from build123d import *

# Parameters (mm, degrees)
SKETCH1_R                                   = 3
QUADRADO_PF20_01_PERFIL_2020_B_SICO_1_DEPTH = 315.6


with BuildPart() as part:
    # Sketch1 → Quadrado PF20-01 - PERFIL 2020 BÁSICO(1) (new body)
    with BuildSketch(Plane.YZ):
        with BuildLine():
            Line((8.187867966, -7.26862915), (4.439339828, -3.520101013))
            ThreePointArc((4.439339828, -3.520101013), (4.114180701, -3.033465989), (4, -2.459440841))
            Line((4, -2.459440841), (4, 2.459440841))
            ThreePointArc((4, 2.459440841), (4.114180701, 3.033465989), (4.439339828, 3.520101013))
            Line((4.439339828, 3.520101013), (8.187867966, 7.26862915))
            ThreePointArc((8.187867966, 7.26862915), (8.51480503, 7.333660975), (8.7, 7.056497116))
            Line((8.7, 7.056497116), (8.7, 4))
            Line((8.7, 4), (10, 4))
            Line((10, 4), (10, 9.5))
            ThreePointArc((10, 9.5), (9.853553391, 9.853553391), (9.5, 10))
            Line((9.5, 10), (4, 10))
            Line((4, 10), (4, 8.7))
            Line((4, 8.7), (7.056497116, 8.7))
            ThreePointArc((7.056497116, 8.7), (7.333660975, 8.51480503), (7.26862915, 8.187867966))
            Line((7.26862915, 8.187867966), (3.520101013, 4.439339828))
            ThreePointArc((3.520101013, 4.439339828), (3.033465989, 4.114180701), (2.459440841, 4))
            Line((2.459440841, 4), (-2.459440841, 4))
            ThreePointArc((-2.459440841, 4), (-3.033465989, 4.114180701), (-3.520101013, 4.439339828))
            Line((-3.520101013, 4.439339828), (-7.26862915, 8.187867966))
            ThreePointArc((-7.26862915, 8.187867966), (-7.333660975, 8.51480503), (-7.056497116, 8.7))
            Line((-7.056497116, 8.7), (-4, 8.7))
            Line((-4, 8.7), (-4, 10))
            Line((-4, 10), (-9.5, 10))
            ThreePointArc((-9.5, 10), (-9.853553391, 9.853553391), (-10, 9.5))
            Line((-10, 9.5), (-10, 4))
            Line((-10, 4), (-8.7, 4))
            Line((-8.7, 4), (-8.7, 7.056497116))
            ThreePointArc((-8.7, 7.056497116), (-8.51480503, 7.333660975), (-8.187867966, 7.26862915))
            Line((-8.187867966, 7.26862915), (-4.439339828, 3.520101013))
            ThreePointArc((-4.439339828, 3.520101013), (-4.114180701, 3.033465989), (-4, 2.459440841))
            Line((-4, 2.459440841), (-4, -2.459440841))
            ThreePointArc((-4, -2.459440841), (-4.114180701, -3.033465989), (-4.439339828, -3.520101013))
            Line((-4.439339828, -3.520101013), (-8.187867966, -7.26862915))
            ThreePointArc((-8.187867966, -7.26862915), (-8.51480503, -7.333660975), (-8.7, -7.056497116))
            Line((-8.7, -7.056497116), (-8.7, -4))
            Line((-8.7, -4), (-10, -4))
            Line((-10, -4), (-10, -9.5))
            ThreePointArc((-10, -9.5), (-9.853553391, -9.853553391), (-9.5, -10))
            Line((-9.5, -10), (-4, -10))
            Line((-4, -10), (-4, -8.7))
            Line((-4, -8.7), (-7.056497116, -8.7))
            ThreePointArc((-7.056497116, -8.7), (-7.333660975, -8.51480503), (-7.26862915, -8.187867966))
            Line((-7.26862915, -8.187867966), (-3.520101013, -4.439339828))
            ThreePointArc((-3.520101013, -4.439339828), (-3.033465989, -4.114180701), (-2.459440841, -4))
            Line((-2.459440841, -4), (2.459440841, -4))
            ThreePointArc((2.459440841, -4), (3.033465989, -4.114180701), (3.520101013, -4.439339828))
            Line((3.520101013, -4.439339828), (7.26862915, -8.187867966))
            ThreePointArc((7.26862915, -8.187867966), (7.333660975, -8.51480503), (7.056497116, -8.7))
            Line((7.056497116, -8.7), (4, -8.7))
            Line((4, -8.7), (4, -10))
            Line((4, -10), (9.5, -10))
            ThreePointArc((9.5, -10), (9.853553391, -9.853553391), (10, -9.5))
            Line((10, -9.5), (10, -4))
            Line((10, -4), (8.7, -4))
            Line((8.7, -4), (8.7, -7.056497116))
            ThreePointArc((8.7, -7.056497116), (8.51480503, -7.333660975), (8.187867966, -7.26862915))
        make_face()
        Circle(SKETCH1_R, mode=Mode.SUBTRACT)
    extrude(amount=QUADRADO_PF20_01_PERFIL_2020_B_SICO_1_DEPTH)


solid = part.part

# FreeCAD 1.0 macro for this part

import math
import FreeCAD as App
import Part
import Sketcher
from FreeCAD import Vector

doc = App.newDocument("Part")
params = doc.addObject("Spreadsheet::Sheet", "Params")
for row, (alias, value) in enumerate([
    ("sketch1_diameter", "6 mm"),
    ("sketch1_radius", "1.5 mm"),
    ("sketch1_radius2", "0.3 mm"),
    ("sketch1_radius3", "0.5 mm"),
    ("sketch1_width", "1.3 mm"),
    ("pad1_length", "315.6 mm"),
], start=1):
    params.set(f"A{row}", alias)
    params.set(f"B{row}", "=" + value)
    params.setAlias(f"B{row}", alias)

body = doc.addObject("PartDesign::Body", "Body")

sketch1 = body.newObject("Sketcher::SketchObject", "Sketch")
sketch1.AttachmentSupport = (doc.getObject("YZ_Plane"), [""])
sketch1.MapMode = "FlatFace"
sketch1.addGeometry(Part.LineSegment(Vector(8.187868, -7.268629, 0), Vector(4.43934, -3.520101, 0)), False)
sketch1.addGeometry(Part.ArcOfCircle(Part.Circle(Vector(5.5, -2.459441, 0), Vector(0, 0, 1), 1.5), math.radians(180), math.radians(225)), False)
sketch1.addGeometry(Part.LineSegment(Vector(4, -2.459441, 0), Vector(4, 2.459441, 0)), False)
sketch1.addGeometry(Part.ArcOfCircle(Part.Circle(Vector(5.5, 2.459441, 0), Vector(0, 0, 1), 1.5), math.radians(135), math.radians(180)), False)
sketch1.addGeometry(Part.LineSegment(Vector(4.43934, 3.520101, 0), Vector(8.187868, 7.268629, 0)), False)
sketch1.addGeometry(Part.ArcOfCircle(Part.Circle(Vector(8.4, 7.056497, 0), Vector(0, 0, 1), 0.3), math.radians(0), math.radians(135)), False)
sketch1.addGeometry(Part.LineSegment(Vector(8.7, 7.056497, 0), Vector(8.7, 4, 0)), False)
sketch1.addGeometry(Part.LineSegment(Vector(8.7, 4, 0), Vector(10, 4, 0)), False)
sketch1.addGeometry(Part.LineSegment(Vector(10, 4, 0), Vector(10, 9.5, 0)), False)
sketch1.addGeometry(Part.ArcOfCircle(Part.Circle(Vector(9.5, 9.5, 0), Vector(0, 0, 1), 0.5), math.radians(0), math.radians(90)), False)
sketch1.addGeometry(Part.LineSegment(Vector(9.5, 10, 0), Vector(4, 10, 0)), False)
sketch1.addGeometry(Part.LineSegment(Vector(4, 10, 0), Vector(4, 8.7, 0)), False)
sketch1.addGeometry(Part.LineSegment(Vector(4, 8.7, 0), Vector(7.056497, 8.7, 0)), False)
sketch1.addGeometry(Part.ArcOfCircle(Part.Circle(Vector(7.056497, 8.4, 0), Vector(0, 0, 1), 0.3), math.radians(-45), math.radians(90)), False)
sketch1.addGeometry(Part.LineSegment(Vector(7.268629, 8.187868, 0), Vector(3.520101, 4.43934, 0)), False)
sketch1.addGeometry(Part.ArcOfCircle(Part.Circle(Vector(2.459441, 5.5, 0), Vector(0, 0, 1), 1.5), math.radians(-90), math.radians(-45)), False)
sketch1.addGeometry(Part.LineSegment(Vector(2.459441, 4, 0), Vector(-2.459441, 4, 0)), False)
sketch1.addGeometry(Part.ArcOfCircle(Part.Circle(Vector(-2.459441, 5.5, 0), Vector(0, 0, 1), 1.5), math.radians(-135), math.radians(-90)), False)
sketch1.addGeometry(Part.LineSegment(Vector(-3.520101, 4.43934, 0), Vector(-7.268629, 8.187868, 0)), False)
sketch1.addGeometry(Part.ArcOfCircle(Part.Circle(Vector(-7.056497, 8.4, 0), Vector(0, 0, 1), 0.3), math.radians(90), math.radians(225)), False)
sketch1.addGeometry(Part.LineSegment(Vector(-7.056497, 8.7, 0), Vector(-4, 8.7, 0)), False)
sketch1.addGeometry(Part.LineSegment(Vector(-4, 8.7, 0), Vector(-4, 10, 0)), False)
sketch1.addGeometry(Part.LineSegment(Vector(-4, 10, 0), Vector(-9.5, 10, 0)), False)
sketch1.addGeometry(Part.ArcOfCircle(Part.Circle(Vector(-9.5, 9.5, 0), Vector(0, 0, 1), 0.5), math.radians(90), math.radians(180)), False)
sketch1.addGeometry(Part.LineSegment(Vector(-10, 9.5, 0), Vector(-10, 4, 0)), False)
sketch1.addGeometry(Part.LineSegment(Vector(-10, 4, 0), Vector(-8.7, 4, 0)), False)
sketch1.addGeometry(Part.LineSegment(Vector(-8.7, 4, 0), Vector(-8.7, 7.056497, 0)), False)
sketch1.addGeometry(Part.ArcOfCircle(Part.Circle(Vector(-8.4, 7.056497, 0), Vector(0, 0, 1), 0.3), math.radians(45), math.radians(180)), False)
sketch1.addGeometry(Part.LineSegment(Vector(-8.187868, 7.268629, 0), Vector(-4.43934, 3.520101, 0)), False)
sketch1.addGeometry(Part.ArcOfCircle(Part.Circle(Vector(-5.5, 2.459441, 0), Vector(0, 0, 1), 1.5), math.radians(0), math.radians(45)), False)
sketch1.addGeometry(Part.LineSegment(Vector(-4, 2.459441, 0), Vector(-4, -2.459441, 0)), False)
sketch1.addGeometry(Part.ArcOfCircle(Part.Circle(Vector(-5.5, -2.459441, 0), Vector(0, 0, 1), 1.5), math.radians(-45), math.radians(0)), False)
sketch1.addGeometry(Part.LineSegment(Vector(-4.43934, -3.520101, 0), Vector(-8.187868, -7.268629, 0)), False)
sketch1.addGeometry(Part.ArcOfCircle(Part.Circle(Vector(-8.4, -7.056497, 0), Vector(0, 0, 1), 0.3), math.radians(-180), math.radians(-45)), False)
sketch1.addGeometry(Part.LineSegment(Vector(-8.7, -7.056497, 0), Vector(-8.7, -4, 0)), False)
sketch1.addGeometry(Part.LineSegment(Vector(-8.7, -4, 0), Vector(-10, -4, 0)), False)
sketch1.addGeometry(Part.LineSegment(Vector(-10, -4, 0), Vector(-10, -9.5, 0)), False)
sketch1.addGeometry(Part.ArcOfCircle(Part.Circle(Vector(-9.5, -9.5, 0), Vector(0, 0, 1), 0.5), math.radians(180), math.radians(270)), False)
sketch1.addGeometry(Part.LineSegment(Vector(-9.5, -10, 0), Vector(-4, -10, 0)), False)
sketch1.addGeometry(Part.LineSegment(Vector(-4, -10, 0), Vector(-4, -8.7, 0)), False)
sketch1.addGeometry(Part.LineSegment(Vector(-4, -8.7, 0), Vector(-7.056497, -8.7, 0)), False)
sketch1.addGeometry(Part.ArcOfCircle(Part.Circle(Vector(-7.056497, -8.4, 0), Vector(0, 0, 1), 0.3), math.radians(135), math.radians(270)), False)
sketch1.addGeometry(Part.LineSegment(Vector(-7.268629, -8.187868, 0), Vector(-3.520101, -4.43934, 0)), False)
sketch1.addGeometry(Part.ArcOfCircle(Part.Circle(Vector(-2.459441, -5.5, 0), Vector(0, 0, 1), 1.5), math.radians(90), math.radians(135)), False)
sketch1.addGeometry(Part.LineSegment(Vector(-2.459441, -4, 0), Vector(2.459441, -4, 0)), False)
sketch1.addGeometry(Part.ArcOfCircle(Part.Circle(Vector(2.459441, -5.5, 0), Vector(0, 0, 1), 1.5), math.radians(45), math.radians(90)), False)
sketch1.addGeometry(Part.LineSegment(Vector(3.520101, -4.43934, 0), Vector(7.268629, -8.187868, 0)), False)
sketch1.addGeometry(Part.ArcOfCircle(Part.Circle(Vector(7.056497, -8.4, 0), Vector(0, 0, 1), 0.3), math.radians(-90), math.radians(45)), False)
sketch1.addGeometry(Part.LineSegment(Vector(7.056497, -8.7, 0), Vector(4, -8.7, 0)), False)
sketch1.addGeometry(Part.LineSegment(Vector(4, -8.7, 0), Vector(4, -10, 0)), False)
sketch1.addGeometry(Part.LineSegment(Vector(4, -10, 0), Vector(9.5, -10, 0)), False)
sketch1.addGeometry(Part.ArcOfCircle(Part.Circle(Vector(9.5, -9.5, 0), Vector(0, 0, 1), 0.5), math.radians(-90), math.radians(0)), False)
sketch1.addGeometry(Part.LineSegment(Vector(10, -9.5, 0), Vector(10, -4, 0)), False)
sketch1.addGeometry(Part.LineSegment(Vector(10, -4, 0), Vector(8.7, -4, 0)), False)
sketch1.addGeometry(Part.LineSegment(Vector(8.7, -4, 0), Vector(8.7, -7.056497, 0)), False)
sketch1.addGeometry(Part.ArcOfCircle(Part.Circle(Vector(8.4, -7.056497, 0), Vector(0, 0, 1), 0.3), math.radians(-135), math.radians(0)), False)
sketch1.addGeometry(Part.Circle(Vector(0, 0, 0), Vector(0, 0, 1), 3), False)
sketch1.addConstraint(Sketcher.Constraint("Tangent", 0, 2, 1, 2))
sketch1.addConstraint(Sketcher.Constraint("Tangent", 1, 1, 2, 1))
sketch1.addConstraint(Sketcher.Constraint("Tangent", 2, 2, 3, 2))
sketch1.addConstraint(Sketcher.Constraint("Tangent", 3, 1, 4, 1))
sketch1.addConstraint(Sketcher.Constraint("Tangent", 4, 2, 5, 2))
sketch1.addConstraint(Sketcher.Constraint("Tangent", 5, 1, 6, 1))
sketch1.addConstraint(Sketcher.Constraint("Coincident", 6, 2, 7, 1))
sketch1.addConstraint(Sketcher.Constraint("Coincident", 7, 2, 8, 1))
sketch1.addConstraint(Sketcher.Constraint("Tangent", 8, 2, 9, 1))
sketch1.addConstraint(Sketcher.Constraint("Tangent", 9, 2, 10, 1))
sketch1.addConstraint(Sketcher.Constraint("Coincident", 10, 2, 11, 1))
sketch1.addConstraint(Sketcher.Constraint("Coincident", 11, 2, 12, 1))
sketch1.addConstraint(Sketcher.Constraint("Tangent", 12, 2, 13, 2))
sketch1.addConstraint(Sketcher.Constraint("Tangent", 13, 1, 14, 1))
sketch1.addConstraint(Sketcher.Constraint("Tangent", 14, 2, 15, 2))
sketch1.addConstraint(Sketcher.Constraint("Tangent", 15, 1, 16, 1))
sketch1.addConstraint(Sketcher.Constraint("Tangent", 16, 2, 17, 2))
sketch1.addConstraint(Sketcher.Constraint("Tangent", 17, 1, 18, 1))
sketch1.addConstraint(Sketcher.Constraint("Tangent", 18, 2, 19, 2))
sketch1.addConstraint(Sketcher.Constraint("Tangent", 19, 1, 20, 1))
sketch1.addConstraint(Sketcher.Constraint("Coincident", 20, 2, 21, 1))
sketch1.addConstraint(Sketcher.Constraint("Coincident", 21, 2, 22, 1))
sketch1.addConstraint(Sketcher.Constraint("Tangent", 22, 2, 23, 1))
sketch1.addConstraint(Sketcher.Constraint("Tangent", 23, 2, 24, 1))
sketch1.addConstraint(Sketcher.Constraint("Coincident", 24, 2, 25, 1))
sketch1.addConstraint(Sketcher.Constraint("Coincident", 25, 2, 26, 1))
sketch1.addConstraint(Sketcher.Constraint("Tangent", 26, 2, 27, 2))
sketch1.addConstraint(Sketcher.Constraint("Tangent", 27, 1, 28, 1))
sketch1.addConstraint(Sketcher.Constraint("Tangent", 28, 2, 29, 2))
sketch1.addConstraint(Sketcher.Constraint("Tangent", 29, 1, 30, 1))
sketch1.addConstraint(Sketcher.Constraint("Tangent", 30, 2, 31, 2))
sketch1.addConstraint(Sketcher.Constraint("Tangent", 31, 1, 32, 1))
sketch1.addConstraint(Sketcher.Constraint("Tangent", 32, 2, 33, 2))
sketch1.addConstraint(Sketcher.Constraint("Tangent", 33, 1, 34, 1))
sketch1.addConstraint(Sketcher.Constraint("Coincident", 34, 2, 35, 1))
sketch1.addConstraint(Sketcher.Constraint("Coincident", 35, 2, 36, 1))
sketch1.addConstraint(Sketcher.Constraint("Tangent", 36, 2, 37, 1))
sketch1.addConstraint(Sketcher.Constraint("Tangent", 37, 2, 38, 1))
sketch1.addConstraint(Sketcher.Constraint("Coincident", 38, 2, 39, 1))
sketch1.addConstraint(Sketcher.Constraint("Coincident", 39, 2, 40, 1))
sketch1.addConstraint(Sketcher.Constraint("Tangent", 40, 2, 41, 2))
sketch1.addConstraint(Sketcher.Constraint("Tangent", 41, 1, 42, 1))
sketch1.addConstraint(Sketcher.Constraint("Tangent", 42, 2, 43, 2))
sketch1.addConstraint(Sketcher.Constraint("Tangent", 43, 1, 44, 1))
sketch1.addConstraint(Sketcher.Constraint("Tangent", 44, 2, 45, 2))
sketch1.addConstraint(Sketcher.Constraint("Tangent", 45, 1, 46, 1))
sketch1.addConstraint(Sketcher.Constraint("Tangent", 46, 2, 47, 2))
sketch1.addConstraint(Sketcher.Constraint("Tangent", 47, 1, 48, 1))
sketch1.addConstraint(Sketcher.Constraint("Coincident", 48, 2, 49, 1))
sketch1.addConstraint(Sketcher.Constraint("Coincident", 49, 2, 50, 1))
sketch1.addConstraint(Sketcher.Constraint("Tangent", 50, 2, 51, 1))
sketch1.addConstraint(Sketcher.Constraint("Tangent", 51, 2, 52, 1))
sketch1.addConstraint(Sketcher.Constraint("Coincident", 52, 2, 53, 1))
sketch1.addConstraint(Sketcher.Constraint("Coincident", 53, 2, 54, 1))
sketch1.addConstraint(Sketcher.Constraint("Tangent", 54, 2, 55, 2))
sketch1.addConstraint(Sketcher.Constraint("Tangent", 55, 1, 0, 1))
sketch1.addConstraint(Sketcher.Constraint("Vertical", 2))
sketch1.addConstraint(Sketcher.Constraint("Vertical", 6))
sketch1.addConstraint(Sketcher.Constraint("Horizontal", 7))
sketch1.addConstraint(Sketcher.Constraint("Vertical", 8))
sketch1.addConstraint(Sketcher.Constraint("Horizontal", 10))
sketch1.addConstraint(Sketcher.Constraint("Vertical", 11))
sketch1.addConstraint(Sketcher.Constraint("Horizontal", 12))
sketch1.addConstraint(Sketcher.Constraint("Horizontal", 16))
sketch1.addConstraint(Sketcher.Constraint("Horizontal", 20))
sketch1.addConstraint(Sketcher.Constraint("Vertical", 21))
sketch1.addConstraint(Sketcher.Constraint("Horizontal", 22))
sketch1.addConstraint(Sketcher.Constraint("Vertical", 24))
sketch1.addConstraint(Sketcher.Constraint("Horizontal", 25))
sketch1.addConstraint(Sketcher.Constraint("Vertical", 26))
sketch1.addConstraint(Sketcher.Constraint("Vertical", 30))
sketch1.addConstraint(Sketcher.Constraint("Vertical", 34))
sketch1.addConstraint(Sketcher.Constraint("Horizontal", 35))
sketch1.addConstraint(Sketcher.Constraint("Vertical", 36))
sketch1.addConstraint(Sketcher.Constraint("Horizontal", 38))
sketch1.addConstraint(Sketcher.Constraint("Vertical", 39))
sketch1.addConstraint(Sketcher.Constraint("Horizontal", 40))
sketch1.addConstraint(Sketcher.Constraint("Horizontal", 44))
sketch1.addConstraint(Sketcher.Constraint("Horizontal", 48))
sketch1.addConstraint(Sketcher.Constraint("Vertical", 49))
sketch1.addConstraint(Sketcher.Constraint("Horizontal", 50))
sketch1.addConstraint(Sketcher.Constraint("Vertical", 52))
sketch1.addConstraint(Sketcher.Constraint("Horizontal", 53))
sketch1.addConstraint(Sketcher.Constraint("Vertical", 54))
sketch1.addConstraint(Sketcher.Constraint("Coincident", 56, 3, -1, 1))
sketch1.addConstraint(Sketcher.Constraint("Equal", 1, 3))
sketch1.addConstraint(Sketcher.Constraint("Equal", 5, 13))
sketch1.addConstraint(Sketcher.Constraint("Equal", 3, 15))
sketch1.addConstraint(Sketcher.Constraint("Equal", 15, 17))
sketch1.addConstraint(Sketcher.Constraint("Equal", 13, 19))
sketch1.addConstraint(Sketcher.Constraint("Equal", 9, 23))
sketch1.addConstraint(Sketcher.Constraint("Equal", 19, 27))
sketch1.addConstraint(Sketcher.Constraint("Equal", 17, 29))
sketch1.addConstraint(Sketcher.Constraint("Equal", 29, 31))
sketch1.addConstraint(Sketcher.Constraint("Equal", 27, 33))
sketch1.addConstraint(Sketcher.Constraint("Equal", 23, 37))
sketch1.addConstraint(Sketcher.Constraint("Equal", 33, 41))
sketch1.addConstraint(Sketcher.Constraint("Equal", 31, 43))
sketch1.addConstraint(Sketcher.Constraint("Equal", 43, 45))
sketch1.addConstraint(Sketcher.Constraint("Equal", 41, 47))
sketch1.addConstraint(Sketcher.Constraint("Equal", 37, 51))
sketch1.addConstraint(Sketcher.Constraint("Equal", 47, 55))
sketch1.addConstraint(Sketcher.Constraint("Symmetric", 1, 3, 29, 3, -1, 1))
sketch1.addConstraint(Sketcher.Constraint("Symmetric", 5, 3, 33, 3, -1, 1))
sketch1.addConstraint(Sketcher.Constraint("Symmetric", 9, 3, 37, 3, -1, 1))
sketch1.addConstraint(Sketcher.Constraint("Symmetric", 13, 3, 41, 3, -1, 1))
sketch1.addConstraint(Sketcher.Constraint("Symmetric", 15, 3, 43, 3, -1, 1))
sketch1.addConstraint(Sketcher.Constraint("Symmetric", 19, 3, 47, 3, -1, 1))
sketch1.addConstraint(Sketcher.Constraint("Symmetric", 23, 3, 51, 3, -1, 1))
sketch1.addConstraint(Sketcher.Constraint("Symmetric", 27, 3, 55, 3, -1, 1))
sketch1.addConstraint(Sketcher.Constraint("Symmetric", 13, 3, 19, 3, -2))
sketch1.addConstraint(Sketcher.Constraint("Symmetric", 9, 3, 23, 3, -2))
sketch1.addConstraint(Sketcher.Constraint("Symmetric", 5, 3, 27, 3, -2))
sketch1.addConstraint(Sketcher.Constraint("Perpendicular", 0, 4))
sketch1.addConstraint(Sketcher.Constraint("Parallel", 4, 14))
sketch1.addConstraint(Sketcher.Constraint("Perpendicular", 14, 18))
sketch1.addConstraint(Sketcher.Constraint("Perpendicular", 28, 32))
sketch1.addConstraint(Sketcher.Constraint("Perpendicular", 42, 46))
sketch1.addConstraint(Sketcher.Constraint("Horizontal", 3, 3, 29, 3))
sketch1.addConstraint(Sketcher.Constraint("Horizontal", 7, 2, 15, 1))
sketch1.addConstraint(Sketcher.Constraint("Horizontal", 16, 2, 24, 2))
sketch1.addConstraint(Sketcher.Constraint("Horizontal", 35, 2, 43, 1))
sketch1.addConstraint(Sketcher.Constraint("Horizontal", 44, 2, 52, 2))
sketch1.addConstraint(Sketcher.Constraint("Vertical", 2, 2, 10, 2))
sketch1.addConstraint(Sketcher.Constraint("Vertical", 21, 2, 29, 1))
sketch1.addConstraint(Sketcher.Constraint("Vertical", 30, 2, 38, 2))
sketch1.addConstraint(Sketcher.Constraint("Vertical", 11, 2, 48, 2))
sketch1.addConstraint(Sketcher.Constraint("Equal", 44, 2))
sketch1.addConstraint(Sketcher.Constraint("Equal", 48, 6))
sketch1.addConstraint(Sketcher.Constraint("Equal", 50, 8))
sketch1.addConstraint(Sketcher.Constraint("Equal", 53, 11))
sketch1.addConstraint(Sketcher.Constraint("Diameter", 56, 6.0))
sketch1.addConstraint(Sketcher.Constraint("Radius", 1, 1.5))
sketch1.addConstraint(Sketcher.Constraint("Radius", 5, 0.3))
sketch1.addConstraint(Sketcher.Constraint("Radius", 9, 0.5))
sketch1.addConstraint(Sketcher.Constraint("DistanceX", 7, 1, 7, 2, 1.3))
sketch1.addConstraint(Sketcher.Constraint("DistanceX", 10, 2, 10, 1, 5.5))
sketch1.addConstraint(Sketcher.Constraint("DistanceX", -1, 1, 1, 1, 4.0))
sketch1.addConstraint(Sketcher.Constraint("DistanceX", 16, 2, 16, 1, 4.918882))
sketch1.setExpression("Constraints[131]", "Params.sketch1_diameter")
sketch1.setExpression("Constraints[132]", "Params.sketch1_radius")
sketch1.setExpression("Constraints[133]", "Params.sketch1_radius2")
sketch1.setExpression("Constraints[134]", "Params.sketch1_radius3")
sketch1.setExpression("Constraints[135]", "Params.sketch1_width")
pad1 = body.newObject("PartDesign::Pad", "Pad")
pad1.Profile = sketch1
pad1.setExpression("Length", "Params.pad1_length")

doc.recompute()
